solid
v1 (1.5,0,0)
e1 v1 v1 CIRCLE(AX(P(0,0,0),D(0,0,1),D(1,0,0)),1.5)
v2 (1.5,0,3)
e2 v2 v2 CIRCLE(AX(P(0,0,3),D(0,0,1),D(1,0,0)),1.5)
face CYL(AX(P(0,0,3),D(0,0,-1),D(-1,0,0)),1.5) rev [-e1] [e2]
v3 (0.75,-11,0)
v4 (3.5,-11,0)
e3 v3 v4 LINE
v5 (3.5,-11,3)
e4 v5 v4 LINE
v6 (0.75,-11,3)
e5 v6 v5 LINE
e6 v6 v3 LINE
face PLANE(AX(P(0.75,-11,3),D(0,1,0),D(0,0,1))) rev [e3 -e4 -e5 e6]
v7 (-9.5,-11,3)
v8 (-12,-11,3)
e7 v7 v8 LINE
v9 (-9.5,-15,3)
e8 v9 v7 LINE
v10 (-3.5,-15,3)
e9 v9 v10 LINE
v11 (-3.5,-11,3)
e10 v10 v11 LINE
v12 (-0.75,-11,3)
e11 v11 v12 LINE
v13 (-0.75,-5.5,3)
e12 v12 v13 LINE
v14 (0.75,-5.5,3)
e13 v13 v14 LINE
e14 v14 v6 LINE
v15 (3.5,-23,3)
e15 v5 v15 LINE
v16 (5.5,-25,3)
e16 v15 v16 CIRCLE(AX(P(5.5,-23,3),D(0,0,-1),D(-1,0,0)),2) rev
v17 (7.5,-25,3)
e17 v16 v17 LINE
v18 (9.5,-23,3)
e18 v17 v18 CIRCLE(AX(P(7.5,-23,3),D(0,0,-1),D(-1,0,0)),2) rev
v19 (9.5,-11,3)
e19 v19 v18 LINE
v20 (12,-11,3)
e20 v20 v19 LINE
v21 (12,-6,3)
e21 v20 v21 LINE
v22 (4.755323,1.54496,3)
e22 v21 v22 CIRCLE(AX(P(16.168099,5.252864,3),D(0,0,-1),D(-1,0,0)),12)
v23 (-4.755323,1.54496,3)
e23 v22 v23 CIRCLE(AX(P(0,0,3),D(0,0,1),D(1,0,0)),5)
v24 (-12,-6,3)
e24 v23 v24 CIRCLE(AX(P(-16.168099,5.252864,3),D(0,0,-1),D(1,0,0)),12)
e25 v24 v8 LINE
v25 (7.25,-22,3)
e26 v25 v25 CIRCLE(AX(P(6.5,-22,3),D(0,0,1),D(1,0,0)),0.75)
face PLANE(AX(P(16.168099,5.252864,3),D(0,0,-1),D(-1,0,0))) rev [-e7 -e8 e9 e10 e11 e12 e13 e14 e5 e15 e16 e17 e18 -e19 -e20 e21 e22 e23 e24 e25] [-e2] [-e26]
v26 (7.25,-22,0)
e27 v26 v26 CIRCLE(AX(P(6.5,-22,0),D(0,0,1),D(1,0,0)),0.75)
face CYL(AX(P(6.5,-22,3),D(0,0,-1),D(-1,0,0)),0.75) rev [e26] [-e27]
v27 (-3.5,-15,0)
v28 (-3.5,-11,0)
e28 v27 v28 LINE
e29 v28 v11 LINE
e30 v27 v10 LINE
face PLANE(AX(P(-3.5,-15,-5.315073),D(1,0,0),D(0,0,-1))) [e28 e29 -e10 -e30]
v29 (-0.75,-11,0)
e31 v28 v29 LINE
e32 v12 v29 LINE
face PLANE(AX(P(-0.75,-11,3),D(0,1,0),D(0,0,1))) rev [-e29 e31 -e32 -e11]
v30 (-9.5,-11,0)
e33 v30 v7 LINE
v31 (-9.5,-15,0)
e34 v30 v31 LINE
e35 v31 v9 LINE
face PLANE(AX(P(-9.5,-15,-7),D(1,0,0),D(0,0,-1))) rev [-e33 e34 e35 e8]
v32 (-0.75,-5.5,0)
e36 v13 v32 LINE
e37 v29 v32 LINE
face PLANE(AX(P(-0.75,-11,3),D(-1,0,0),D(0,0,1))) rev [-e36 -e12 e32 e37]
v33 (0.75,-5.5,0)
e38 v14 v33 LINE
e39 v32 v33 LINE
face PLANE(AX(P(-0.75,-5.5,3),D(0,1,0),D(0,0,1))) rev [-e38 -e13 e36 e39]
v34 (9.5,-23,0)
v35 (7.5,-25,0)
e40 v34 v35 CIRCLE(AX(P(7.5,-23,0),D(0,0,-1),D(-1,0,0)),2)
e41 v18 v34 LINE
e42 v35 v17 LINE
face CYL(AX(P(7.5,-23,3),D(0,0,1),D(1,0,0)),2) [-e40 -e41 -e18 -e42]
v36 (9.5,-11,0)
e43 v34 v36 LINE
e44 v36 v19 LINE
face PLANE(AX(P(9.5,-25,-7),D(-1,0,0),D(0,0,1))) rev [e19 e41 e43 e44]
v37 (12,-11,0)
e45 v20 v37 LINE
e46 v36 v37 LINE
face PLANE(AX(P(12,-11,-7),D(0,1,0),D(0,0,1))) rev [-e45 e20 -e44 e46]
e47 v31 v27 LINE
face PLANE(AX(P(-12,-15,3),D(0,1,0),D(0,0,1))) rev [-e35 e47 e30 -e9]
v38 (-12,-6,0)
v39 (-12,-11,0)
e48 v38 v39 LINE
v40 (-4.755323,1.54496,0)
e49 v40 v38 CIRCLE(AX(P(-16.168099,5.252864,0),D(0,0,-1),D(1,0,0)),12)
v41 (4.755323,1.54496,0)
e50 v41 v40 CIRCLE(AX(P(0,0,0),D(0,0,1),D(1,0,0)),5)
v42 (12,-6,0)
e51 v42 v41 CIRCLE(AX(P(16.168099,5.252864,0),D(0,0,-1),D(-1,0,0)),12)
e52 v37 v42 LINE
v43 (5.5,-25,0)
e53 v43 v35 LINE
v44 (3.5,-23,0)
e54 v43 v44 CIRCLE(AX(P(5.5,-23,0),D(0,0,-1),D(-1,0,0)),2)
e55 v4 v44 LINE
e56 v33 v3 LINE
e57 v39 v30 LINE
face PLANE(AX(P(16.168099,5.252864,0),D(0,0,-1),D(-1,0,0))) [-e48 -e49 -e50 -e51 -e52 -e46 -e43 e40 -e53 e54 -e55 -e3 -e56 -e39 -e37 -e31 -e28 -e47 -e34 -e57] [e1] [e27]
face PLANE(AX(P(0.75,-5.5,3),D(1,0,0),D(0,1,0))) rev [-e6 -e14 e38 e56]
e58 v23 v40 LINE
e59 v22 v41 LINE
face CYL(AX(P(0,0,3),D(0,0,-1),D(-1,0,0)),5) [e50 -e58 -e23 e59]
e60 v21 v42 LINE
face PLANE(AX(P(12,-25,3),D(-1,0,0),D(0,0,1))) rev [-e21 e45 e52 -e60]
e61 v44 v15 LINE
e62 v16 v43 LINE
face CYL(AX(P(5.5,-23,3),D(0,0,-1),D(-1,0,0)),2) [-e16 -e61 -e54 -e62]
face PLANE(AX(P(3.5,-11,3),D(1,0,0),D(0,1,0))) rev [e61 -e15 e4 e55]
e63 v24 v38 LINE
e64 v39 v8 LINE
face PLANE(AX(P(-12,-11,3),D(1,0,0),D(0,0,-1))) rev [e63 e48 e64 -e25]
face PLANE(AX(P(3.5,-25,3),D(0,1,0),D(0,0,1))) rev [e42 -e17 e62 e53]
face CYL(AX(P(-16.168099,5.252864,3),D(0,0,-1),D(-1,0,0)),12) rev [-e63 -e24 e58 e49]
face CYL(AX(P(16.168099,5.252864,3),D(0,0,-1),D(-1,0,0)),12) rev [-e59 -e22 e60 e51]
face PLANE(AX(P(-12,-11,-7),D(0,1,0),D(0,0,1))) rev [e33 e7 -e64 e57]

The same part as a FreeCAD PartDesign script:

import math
import FreeCAD as App
import Part
import Sketcher
from FreeCAD import Vector


def edges_at(feature, points):
    """Names of the edges that pass closest to the given points."""
    edges = feature.Shape.Edges
    near = lambda p: min(range(len(edges)), key=lambda i: edges[i].distToShape(Part.Vertex(*p))[0])
    return sorted({f"Edge{near(p) + 1}" for p in points})


def add_polygon(sketch, points):
    """Adds a closed chain of lines whose ends are joined by coincident constraints."""
    first, n = sketch.GeometryCount, len(points)
    for a, b in zip(points, points[1:] + points[:1]):
        sketch.addGeometry(Part.LineSegment(App.Vector(*a, 0), App.Vector(*b, 0)), False)
    for i in range(n):
        sketch.addConstraint(Sketcher.Constraint("Coincident", first + i, 2, first + (i + 1) % n, 1))

doc = App.newDocument("Part")
params = doc.addObject("Spreadsheet::Sheet", "Params")
for row, (alias, value) in enumerate([
    ("sketch1_diameter", "3 mm"),
    ("sketch1_radius", "12 mm"),
    ("sketch1_radius2", "5 mm"),
    ("sketch1_diameter2", "1.5 mm"),
    ("sketch1_width", "5 mm"),
    ("pad1_length", "3 mm"),
    ("sketch2_height", "4 mm"),
    ("sketch2_width", "2.5 mm"),
    ("pocket1_length", "10 mm"),
    ("sketch3_height", "4 mm"),
    ("sketch3_width", "3.5 mm"),
    ("pad2_length", "3 mm"),
    ("sketch4_height", "14 mm"),
    ("sketch4_width", "2.5 mm"),
    ("pocket2_length", "10 mm"),
    ("fillet_radius", "2 mm"),
], start=1):
    params.set(f"A{row}", alias)
    params.set(f"B{row}", "=" + value)
    params.setAlias(f"B{row}", alias)

body = doc.addObject("PartDesign::Body", "Body")

sketch1 = body.newObject("Sketcher::SketchObject", "Sketch")
sketch1.AttachmentSupport = (doc.getObject("XY_Plane"), [""])
sketch1.MapMode = "FlatFace"
sketch1.addGeometry([
    Part.LineSegment(Vector(-7, -11, 0), Vector(-0.8, -11, 0)),
    Part.LineSegment(Vector(-0.8, -11, 0), Vector(-0.8, -5.5, 0)),
    Part.LineSegment(Vector(-0.8, -5.5, 0), Vector(0.8, -5.5, 0)),
    Part.LineSegment(Vector(0.8, -5.5, 0), Vector(0.8, -11, 0)),
    Part.LineSegment(Vector(0.8, -11, 0), Vector(3.5, -11, 0)),
    Part.LineSegment(Vector(3.5, -11, 0), Vector(3.5, -25, 0)),
    Part.LineSegment(Vector(3.5, -25, 0), Vector(12, -25, 0)),
    Part.LineSegment(Vector(12, -25, 0), Vector(12, -6, 0)),
    Part.ArcOfCircle(Part.Circle(Vector(16.2, 5.3, 0), Vector(0, 0, 1), 12), math.radians(-162), math.radians(-110)),
    Part.ArcOfCircle(Part.Circle(Vector(0, 0, 0), Vector(0, 0, 1), 5), math.radians(18), math.radians(162)),
    Part.ArcOfCircle(Part.Circle(Vector(-16.2, 5.3, 0), Vector(0, 0, 1), 12), math.radians(-70), math.radians(-18)),
    Part.LineSegment(Vector(-12, -6, 0), Vector(-12, -15, 0)),
    Part.LineSegment(Vector(-12, -15, 0), Vector(-7, -15, 0)),
    Part.LineSegment(Vector(-7, -15, 0), Vector(-7, -11, 0)),
    Part.Circle(Vector(6.5, -22, 0), Vector(0, 0, 1), 0.8),
    Part.Circle(Vector(0, 0, 0), Vector(0, 0, 1), 1.5),
], False)
sketch1.addConstraint([
    Sketcher.Constraint("Coincident", 0, 2, 1, 1),
    Sketcher.Constraint("Coincident", 1, 2, 2, 1),
    Sketcher.Constraint("Coincident", 2, 2, 3, 1),
    Sketcher.Constraint("Coincident", 3, 2, 4, 1),
    Sketcher.Constraint("Coincident", 4, 2, 5, 1),
    Sketcher.Constraint("Coincident", 5, 2, 6, 1),
    Sketcher.Constraint("Coincident", 6, 2, 7, 1),
    Sketcher.Constraint("Coincident", 7, 2, 8, 2),
    Sketcher.Constraint("Tangent", 8, 1, 9, 1),
    Sketcher.Constraint("Tangent", 9, 2, 10, 2),
    Sketcher.Constraint("Coincident", 10, 1, 11, 1),
    Sketcher.Constraint("Coincident", 11, 2, 12, 1),
    Sketcher.Constraint("Coincident", 12, 2, 13, 1),
    Sketcher.Constraint("Coincident", 13, 2, 0, 1),
    Sketcher.Constraint("Horizontal", 0),
    Sketcher.Constraint("Vertical", 1),
    Sketcher.Constraint("Horizontal", 2),
    Sketcher.Constraint("Vertical", 3),
    Sketcher.Constraint("Horizontal", 4),
    Sketcher.Constraint("Vertical", 5),
    Sketcher.Constraint("Horizontal", 6),
    Sketcher.Constraint("Vertical", 7),
    Sketcher.Constraint("Vertical", 11),
    Sketcher.Constraint("Horizontal", 12),
    Sketcher.Constraint("Vertical", 13),
    Sketcher.Constraint("Coincident", 9, 3, -1, 1),
    Sketcher.Constraint("Coincident", 15, 3, -1, 1),
    Sketcher.Constraint("Equal", 8, 10),
    Sketcher.Constraint("Symmetric", 0, 2, 3, 2, -2),
    Sketcher.Constraint("Symmetric", 7, 2, 10, 1, -2),
    Sketcher.Constraint("Diameter", 15, 3.0),
    Sketcher.Constraint("Radius", 8, 12.0),
    Sketcher.Constraint("Radius", 9, 5.0),
    Sketcher.Constraint("Diameter", 14, 1.5),
    Sketcher.Constraint("DistanceX", 12, 1, 12, 2, 5.0),
    Sketcher.Constraint("DistanceY", 5, 2, 5, 1, 14.0),
    Sketcher.Constraint("DistanceY", 7, 1, 7, 2, 19.0),
    Sketcher.Constraint("DistanceY", 11, 2, 11, 1, 9.0),
    Sketcher.Constraint("DistanceX", 2, 1, 2, 2, 1.5),
    Sketcher.Constraint("DistanceX", 6, 1, 6, 2, 8.5),
    Sketcher.Constraint("DistanceY", 1, 1, 1, 2, 5.5),
    Sketcher.Constraint("DistanceY", 14, 3, -1, 1, 22.0),
    Sketcher.Constraint("DistanceY", 0, 2, -1, 1, 11.0),
    Sketcher.Constraint("DistanceX", -1, 1, 6, 2, 12.0),
    Sketcher.Constraint("DistanceX", 4, 2, 14, 3, 3.0),
])
sketch1.setExpression("Constraints[30]", "Params.sketch1_diameter")
sketch1.setExpression("Constraints[31]", "Params.sketch1_radius")
sketch1.setExpression("Constraints[32]", "Params.sketch1_radius2")
sketch1.setExpression("Constraints[33]", "Params.sketch1_diameter2")
sketch1.setExpression("Constraints[34]", "Params.sketch1_width")
pad1 = body.newObject("PartDesign::Pad", "Pad")
pad1.Profile = sketch1
pad1.setExpression("Length", "Params.pad1_length")

sketch2 = body.newObject("Sketcher::SketchObject", "Sketch001")
sketch2.AttachmentSupport = (doc.getObject("XY_Plane"), [""])
sketch2.MapMode = "FlatFace"
sketch2.AttachmentOffset = App.Placement(Vector(0, 0, 3), App.Rotation())
add_polygon(sketch2, [(-12, -11), (-12, -15), (-9.5, -15), (-9.5, -11)])
sketch2.addConstraint([
    Sketcher.Constraint("Vertical", 0),
    Sketcher.Constraint("Horizontal", 1),
    Sketcher.Constraint("Vertical", 2),
    Sketcher.Constraint("Horizontal", 3),
    Sketcher.Constraint("DistanceY", 0, 2, 0, 1, 4.0),
    Sketcher.Constraint("DistanceX", 1, 1, 1, 2, 2.5),
    Sketcher.Constraint("DistanceX", 0, 2, -1, 1, 12.0),
    Sketcher.Constraint("DistanceY", 0, 2, -1, 1, 15.0),
])
sketch2.setExpression("Constraints[8]", "Params.sketch2_height")
sketch2.setExpression("Constraints[9]", "Params.sketch2_width")
pocket1 = body.newObject("PartDesign::Pocket", "Pocket")
pocket1.Profile = sketch2
pocket1.setExpression("Length", "Params.pocket1_length")

sketch3 = body.newObject("Sketcher::SketchObject", "Sketch002")
sketch3.AttachmentSupport = (doc.getObject("XY_Plane"), [""])
sketch3.MapMode = "FlatFace"
sketch3.AttachmentOffset = App.Placement(Vector(0, 0, 3), App.Rotation())
add_polygon(sketch3, [(-7, -11), (-7, -15), (-3.5, -15), (-3.5, -11)])
sketch3.addConstraint([
    Sketcher.Constraint("Vertical", 0),
    Sketcher.Constraint("Horizontal", 1),
    Sketcher.Constraint("Vertical", 2),
    Sketcher.Constraint("Horizontal", 3),
    Sketcher.Constraint("DistanceY", 0, 2, 0, 1, 4.0),
    Sketcher.Constraint("DistanceX", 1, 1, 1, 2, 3.5),
    Sketcher.Constraint("DistanceX", 0, 2, -1, 1, 7.0),
    Sketcher.Constraint("DistanceY", 0, 2, -1, 1, 15.0),
])
sketch3.setExpression("Constraints[8]", "Params.sketch3_height")
sketch3.setExpression("Constraints[9]", "Params.sketch3_width")
pad2 = body.newObject("PartDesign::Pad", "Pad001")
pad2.Profile = sketch3
pad2.setExpression("Length", "Params.pad2_length")
pad2.Reversed = True

sketch4 = body.newObject("Sketcher::SketchObject", "Sketch003")
sketch4.AttachmentSupport = (doc.getObject("XY_Plane"), [""])
sketch4.MapMode = "FlatFace"
sketch4.AttachmentOffset = App.Placement(Vector(0, 0, 3), App.Rotation())
add_polygon(sketch4, [(9.5, -11), (9.5, -25), (12, -25), (12, -11)])
sketch4.addConstraint([
    Sketcher.Constraint("Vertical", 0),
    Sketcher.Constraint("Horizontal", 1),
    Sketcher.Constraint("Vertical", 2),
    Sketcher.Constraint("Horizontal", 3),
    Sketcher.Constraint("DistanceY", 0, 2, 0, 1, 14.0),
    Sketcher.Constraint("DistanceX", 1, 1, 1, 2, 2.5),
    Sketcher.Constraint("DistanceY", 0, 2, -1, 1, 25.0),
    Sketcher.Constraint("DistanceX", -1, 1, 1, 2, 12.0),
])
sketch4.setExpression("Constraints[8]", "Params.sketch4_height")
sketch4.setExpression("Constraints[9]", "Params.sketch4_width")
pocket2 = body.newObject("PartDesign::Pocket", "Pocket001")
pocket2.Profile = sketch4
pocket2.setExpression("Length", "Params.pocket2_length")
doc.recompute()

fillet = body.newObject("PartDesign::Fillet", "Fillet")
fillet.Base = (pocket2, edges_at(pocket2, [(3.5, -25, 1.5), (9.5, -25, 1.5)]))
fillet.setExpression("Radius", "Params.fillet_radius")

doc.recompute()
